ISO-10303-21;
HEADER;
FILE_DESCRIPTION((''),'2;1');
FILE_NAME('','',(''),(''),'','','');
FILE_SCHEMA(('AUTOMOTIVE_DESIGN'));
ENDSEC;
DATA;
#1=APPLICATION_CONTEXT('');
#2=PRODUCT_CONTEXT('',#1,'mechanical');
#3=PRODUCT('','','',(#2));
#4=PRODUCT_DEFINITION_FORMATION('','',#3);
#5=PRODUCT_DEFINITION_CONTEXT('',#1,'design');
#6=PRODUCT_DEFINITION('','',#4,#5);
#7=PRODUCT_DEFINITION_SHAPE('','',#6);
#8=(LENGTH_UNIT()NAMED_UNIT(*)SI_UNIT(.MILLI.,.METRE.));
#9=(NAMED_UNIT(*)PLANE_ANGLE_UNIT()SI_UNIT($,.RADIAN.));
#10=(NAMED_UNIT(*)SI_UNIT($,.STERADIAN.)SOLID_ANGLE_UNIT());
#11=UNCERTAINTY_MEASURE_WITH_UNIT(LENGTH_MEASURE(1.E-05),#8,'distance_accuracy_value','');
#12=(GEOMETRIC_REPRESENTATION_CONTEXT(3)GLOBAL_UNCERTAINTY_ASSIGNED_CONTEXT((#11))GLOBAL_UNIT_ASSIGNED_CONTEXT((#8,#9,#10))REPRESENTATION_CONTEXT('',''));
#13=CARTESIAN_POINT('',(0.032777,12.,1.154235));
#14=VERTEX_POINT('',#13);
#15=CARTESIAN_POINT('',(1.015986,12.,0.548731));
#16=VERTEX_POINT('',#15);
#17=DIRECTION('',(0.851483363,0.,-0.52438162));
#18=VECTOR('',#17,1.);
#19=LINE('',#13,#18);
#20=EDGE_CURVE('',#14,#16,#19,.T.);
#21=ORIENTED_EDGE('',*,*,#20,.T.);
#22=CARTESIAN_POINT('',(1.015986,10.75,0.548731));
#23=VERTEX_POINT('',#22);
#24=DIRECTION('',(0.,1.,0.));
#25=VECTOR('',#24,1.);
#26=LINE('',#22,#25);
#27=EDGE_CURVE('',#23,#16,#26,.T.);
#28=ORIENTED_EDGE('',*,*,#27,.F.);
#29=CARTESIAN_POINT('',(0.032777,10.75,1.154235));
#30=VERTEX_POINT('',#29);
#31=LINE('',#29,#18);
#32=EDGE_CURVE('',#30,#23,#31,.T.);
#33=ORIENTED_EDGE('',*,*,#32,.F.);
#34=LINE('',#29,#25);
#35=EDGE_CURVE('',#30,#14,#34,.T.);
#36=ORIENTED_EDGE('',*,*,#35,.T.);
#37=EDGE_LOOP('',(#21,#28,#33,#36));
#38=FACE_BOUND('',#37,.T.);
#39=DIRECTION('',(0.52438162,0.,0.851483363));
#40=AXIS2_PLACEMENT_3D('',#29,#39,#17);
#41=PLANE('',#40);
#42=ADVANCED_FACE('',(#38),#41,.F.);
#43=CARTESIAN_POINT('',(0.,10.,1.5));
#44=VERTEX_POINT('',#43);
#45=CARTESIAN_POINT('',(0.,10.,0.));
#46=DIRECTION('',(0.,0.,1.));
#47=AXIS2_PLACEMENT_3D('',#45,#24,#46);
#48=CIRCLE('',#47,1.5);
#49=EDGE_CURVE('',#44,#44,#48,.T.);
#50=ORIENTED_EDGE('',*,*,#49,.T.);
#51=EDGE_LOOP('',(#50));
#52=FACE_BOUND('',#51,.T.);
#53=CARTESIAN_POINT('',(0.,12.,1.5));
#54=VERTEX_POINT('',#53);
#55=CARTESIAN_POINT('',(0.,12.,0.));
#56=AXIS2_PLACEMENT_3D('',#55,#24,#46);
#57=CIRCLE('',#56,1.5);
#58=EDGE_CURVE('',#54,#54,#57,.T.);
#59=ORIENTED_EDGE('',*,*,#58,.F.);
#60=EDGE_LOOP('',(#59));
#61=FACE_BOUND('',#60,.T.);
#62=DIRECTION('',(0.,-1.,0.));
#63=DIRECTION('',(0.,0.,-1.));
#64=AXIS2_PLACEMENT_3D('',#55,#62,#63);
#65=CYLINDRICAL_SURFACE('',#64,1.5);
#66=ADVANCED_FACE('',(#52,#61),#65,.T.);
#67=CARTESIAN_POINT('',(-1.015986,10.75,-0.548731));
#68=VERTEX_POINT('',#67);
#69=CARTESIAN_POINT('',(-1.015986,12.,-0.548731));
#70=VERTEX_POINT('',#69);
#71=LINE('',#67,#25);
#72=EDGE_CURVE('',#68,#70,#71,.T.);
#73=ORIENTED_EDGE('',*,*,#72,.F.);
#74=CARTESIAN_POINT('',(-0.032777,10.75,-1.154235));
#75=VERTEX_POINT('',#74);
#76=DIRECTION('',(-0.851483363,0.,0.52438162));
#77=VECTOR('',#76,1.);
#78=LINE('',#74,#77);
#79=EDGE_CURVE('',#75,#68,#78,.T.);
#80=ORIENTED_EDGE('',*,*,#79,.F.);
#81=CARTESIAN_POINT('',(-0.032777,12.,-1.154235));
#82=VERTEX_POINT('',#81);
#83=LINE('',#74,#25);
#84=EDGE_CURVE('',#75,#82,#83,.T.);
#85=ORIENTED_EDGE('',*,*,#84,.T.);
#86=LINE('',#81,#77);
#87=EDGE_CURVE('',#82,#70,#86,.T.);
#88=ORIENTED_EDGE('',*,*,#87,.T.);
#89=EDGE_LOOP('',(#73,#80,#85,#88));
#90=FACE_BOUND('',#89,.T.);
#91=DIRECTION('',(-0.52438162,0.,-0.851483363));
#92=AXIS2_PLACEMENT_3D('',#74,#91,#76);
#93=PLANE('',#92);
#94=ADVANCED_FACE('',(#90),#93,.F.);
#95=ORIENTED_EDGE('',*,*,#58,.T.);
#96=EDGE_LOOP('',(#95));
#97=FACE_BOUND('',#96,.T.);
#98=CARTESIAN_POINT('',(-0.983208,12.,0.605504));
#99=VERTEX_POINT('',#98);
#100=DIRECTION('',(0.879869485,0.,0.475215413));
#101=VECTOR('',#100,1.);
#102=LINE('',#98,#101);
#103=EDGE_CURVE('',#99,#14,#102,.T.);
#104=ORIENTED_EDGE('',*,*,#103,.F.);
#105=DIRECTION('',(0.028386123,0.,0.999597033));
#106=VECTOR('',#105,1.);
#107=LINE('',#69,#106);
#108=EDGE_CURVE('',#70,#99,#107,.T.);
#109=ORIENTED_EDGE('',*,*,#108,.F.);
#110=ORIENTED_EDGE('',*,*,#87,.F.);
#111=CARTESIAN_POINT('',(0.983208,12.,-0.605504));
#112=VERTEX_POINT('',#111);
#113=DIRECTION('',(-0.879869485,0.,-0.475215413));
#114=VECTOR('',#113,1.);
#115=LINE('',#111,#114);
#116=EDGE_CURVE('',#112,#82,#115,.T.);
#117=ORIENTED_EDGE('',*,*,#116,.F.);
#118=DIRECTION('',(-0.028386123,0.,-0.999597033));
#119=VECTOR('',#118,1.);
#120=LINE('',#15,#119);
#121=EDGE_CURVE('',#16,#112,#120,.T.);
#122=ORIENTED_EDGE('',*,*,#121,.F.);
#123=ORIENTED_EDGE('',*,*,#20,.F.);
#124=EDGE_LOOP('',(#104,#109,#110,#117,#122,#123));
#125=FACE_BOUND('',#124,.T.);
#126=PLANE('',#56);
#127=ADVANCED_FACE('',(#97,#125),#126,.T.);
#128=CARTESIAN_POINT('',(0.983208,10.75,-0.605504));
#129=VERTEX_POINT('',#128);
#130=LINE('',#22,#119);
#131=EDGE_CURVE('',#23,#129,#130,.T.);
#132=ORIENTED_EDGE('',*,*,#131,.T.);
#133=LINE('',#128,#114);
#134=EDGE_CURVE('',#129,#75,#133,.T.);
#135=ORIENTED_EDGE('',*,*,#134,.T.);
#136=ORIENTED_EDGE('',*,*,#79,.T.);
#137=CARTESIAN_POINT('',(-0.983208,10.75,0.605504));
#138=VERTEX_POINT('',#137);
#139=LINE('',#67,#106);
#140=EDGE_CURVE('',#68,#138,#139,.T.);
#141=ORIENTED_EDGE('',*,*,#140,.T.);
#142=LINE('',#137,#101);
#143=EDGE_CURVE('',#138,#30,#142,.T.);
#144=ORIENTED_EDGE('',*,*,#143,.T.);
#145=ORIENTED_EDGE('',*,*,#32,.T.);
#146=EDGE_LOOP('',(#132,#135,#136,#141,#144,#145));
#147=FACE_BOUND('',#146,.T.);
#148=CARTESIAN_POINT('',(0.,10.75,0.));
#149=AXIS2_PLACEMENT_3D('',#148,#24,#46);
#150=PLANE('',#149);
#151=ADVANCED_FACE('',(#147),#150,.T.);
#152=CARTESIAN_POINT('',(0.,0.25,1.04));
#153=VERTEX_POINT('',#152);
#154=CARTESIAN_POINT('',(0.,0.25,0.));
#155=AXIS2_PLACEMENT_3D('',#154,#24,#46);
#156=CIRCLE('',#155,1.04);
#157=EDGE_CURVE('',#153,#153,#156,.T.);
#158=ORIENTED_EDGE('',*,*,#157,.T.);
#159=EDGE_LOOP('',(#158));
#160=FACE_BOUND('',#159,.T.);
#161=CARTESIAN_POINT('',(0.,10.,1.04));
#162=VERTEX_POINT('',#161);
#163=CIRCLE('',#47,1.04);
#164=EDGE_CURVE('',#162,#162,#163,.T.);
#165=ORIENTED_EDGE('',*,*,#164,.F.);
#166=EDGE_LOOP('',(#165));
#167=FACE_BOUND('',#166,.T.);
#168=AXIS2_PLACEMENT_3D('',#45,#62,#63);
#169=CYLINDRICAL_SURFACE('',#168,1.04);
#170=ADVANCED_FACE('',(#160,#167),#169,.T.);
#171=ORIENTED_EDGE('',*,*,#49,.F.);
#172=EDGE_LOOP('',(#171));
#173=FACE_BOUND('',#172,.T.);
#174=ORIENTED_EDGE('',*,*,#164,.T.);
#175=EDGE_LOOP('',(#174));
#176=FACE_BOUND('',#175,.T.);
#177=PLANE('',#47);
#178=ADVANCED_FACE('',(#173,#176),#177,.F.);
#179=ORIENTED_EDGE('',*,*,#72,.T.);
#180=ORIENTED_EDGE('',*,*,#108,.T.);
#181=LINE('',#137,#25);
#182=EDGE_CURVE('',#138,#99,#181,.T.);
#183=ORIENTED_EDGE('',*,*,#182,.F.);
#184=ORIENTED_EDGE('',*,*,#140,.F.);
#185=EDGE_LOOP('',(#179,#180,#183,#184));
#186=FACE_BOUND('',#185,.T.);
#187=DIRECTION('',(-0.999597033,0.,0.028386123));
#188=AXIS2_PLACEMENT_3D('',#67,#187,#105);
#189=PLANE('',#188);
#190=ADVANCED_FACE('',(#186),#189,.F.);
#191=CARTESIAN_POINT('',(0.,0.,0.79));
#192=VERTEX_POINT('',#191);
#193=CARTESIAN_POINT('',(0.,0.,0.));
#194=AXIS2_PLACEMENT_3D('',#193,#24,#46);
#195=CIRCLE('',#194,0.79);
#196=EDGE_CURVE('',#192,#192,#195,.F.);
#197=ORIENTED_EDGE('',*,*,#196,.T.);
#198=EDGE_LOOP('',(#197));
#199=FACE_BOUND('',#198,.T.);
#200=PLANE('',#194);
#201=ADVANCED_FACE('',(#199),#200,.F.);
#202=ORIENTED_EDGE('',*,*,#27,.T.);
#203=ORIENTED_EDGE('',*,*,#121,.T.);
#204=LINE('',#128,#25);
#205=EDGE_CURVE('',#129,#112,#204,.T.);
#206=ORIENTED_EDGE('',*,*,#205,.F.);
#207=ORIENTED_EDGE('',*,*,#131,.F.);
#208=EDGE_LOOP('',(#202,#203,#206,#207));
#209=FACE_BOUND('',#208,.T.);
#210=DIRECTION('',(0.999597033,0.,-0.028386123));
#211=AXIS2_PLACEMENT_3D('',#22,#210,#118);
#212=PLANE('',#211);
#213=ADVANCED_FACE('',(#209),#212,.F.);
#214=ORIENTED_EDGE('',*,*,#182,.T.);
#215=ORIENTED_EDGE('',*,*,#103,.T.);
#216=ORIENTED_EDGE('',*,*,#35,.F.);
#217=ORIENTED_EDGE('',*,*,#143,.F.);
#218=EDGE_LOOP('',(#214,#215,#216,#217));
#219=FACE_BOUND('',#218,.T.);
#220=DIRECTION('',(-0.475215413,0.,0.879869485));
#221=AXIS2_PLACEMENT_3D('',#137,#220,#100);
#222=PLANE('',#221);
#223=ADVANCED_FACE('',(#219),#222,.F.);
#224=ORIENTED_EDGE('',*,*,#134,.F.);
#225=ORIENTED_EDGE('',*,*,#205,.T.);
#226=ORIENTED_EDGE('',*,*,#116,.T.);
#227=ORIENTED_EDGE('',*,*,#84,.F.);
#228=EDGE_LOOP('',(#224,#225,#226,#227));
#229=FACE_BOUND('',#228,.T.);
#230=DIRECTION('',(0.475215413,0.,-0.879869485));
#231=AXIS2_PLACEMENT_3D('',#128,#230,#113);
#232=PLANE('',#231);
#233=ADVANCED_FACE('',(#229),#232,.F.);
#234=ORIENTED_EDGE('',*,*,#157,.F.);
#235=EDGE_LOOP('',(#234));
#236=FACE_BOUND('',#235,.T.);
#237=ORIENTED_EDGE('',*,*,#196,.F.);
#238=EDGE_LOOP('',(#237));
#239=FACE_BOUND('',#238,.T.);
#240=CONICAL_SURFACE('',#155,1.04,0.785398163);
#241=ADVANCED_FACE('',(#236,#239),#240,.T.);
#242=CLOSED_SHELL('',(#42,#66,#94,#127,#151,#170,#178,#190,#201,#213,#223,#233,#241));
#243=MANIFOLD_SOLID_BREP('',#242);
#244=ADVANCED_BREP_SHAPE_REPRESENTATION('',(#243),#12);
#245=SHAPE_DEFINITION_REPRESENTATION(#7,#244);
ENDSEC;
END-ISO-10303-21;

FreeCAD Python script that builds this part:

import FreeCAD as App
import Part
import Sketcher

V = App.Vector


def edges_at(feature, points):
    """Names of the edges that pass closest to the given points."""
    edges = feature.Shape.Edges
    near = lambda p: min(range(len(edges)), key=lambda i: edges[i].distToShape(Part.Vertex(*p))[0])
    return sorted({f"Edge{near(p) + 1}" for p in points})

doc = App.newDocument("Part")
body = doc.addObject("PartDesign::Body", "Body")

# Sketch on XZ plane
sketch1 = body.newObject("Sketcher::SketchObject", "Sketch")
sketch1.AttachmentSupport = (doc.getObject("XZ_Plane"), [""])
sketch1.MapMode = "FlatFace"
sketch1.addGeometry(Part.Circle(V(0, 0, 0), V(0, 0, 1), 1), False)
sketch1.addConstraint(Sketcher.Constraint("Coincident", 0, 3, -1, 1))
sketch1.addConstraint(Sketcher.Constraint("Diameter", 0, 2.08))
pad1 = body.newObject("PartDesign::Pad", "Pad")
pad1.Profile = sketch1
pad1.Length = 10
pad1.Reversed = True

# Sketch on XZ plane
sketch2 = body.newObject("Sketcher::SketchObject", "Sketch001")
sketch2.AttachmentSupport = (doc.getObject("XZ_Plane"), [""])
sketch2.MapMode = "FlatFace"
sketch2.AttachmentOffset = App.Placement(V(0, 0, -10), App.Rotation())
sketch2.addGeometry(Part.Circle(V(0, 0, 0), V(0, 0, 1), 1.5), False)
sketch2.addConstraint(Sketcher.Constraint("Coincident", 0, 3, -1, 1))
sketch2.addConstraint(Sketcher.Constraint("Diameter", 0, 3.0))
pad2 = body.newObject("PartDesign::Pad", "Pad001")
pad2.Profile = sketch2
pad2.Length = 2
pad2.Reversed = True

# Sketch on XZ plane
sketch3 = body.newObject("Sketcher::SketchObject", "Sketch002")
sketch3.AttachmentSupport = (doc.getObject("XZ_Plane"), [""])
sketch3.MapMode = "FlatFace"
sketch3.AttachmentOffset = App.Placement(V(0, 0, -12), App.Rotation())
sketch3.addGeometry(Part.LineSegment(V(0, -1.2, 0), V(-1, -0.5, 0)), False)
sketch3.addGeometry(Part.LineSegment(V(-1, -0.5, 0), V(-1, 0.6, 0)), False)
sketch3.addGeometry(Part.LineSegment(V(-1, 0.6, 0), V(0, 1.2, 0)), False)
sketch3.addGeometry(Part.LineSegment(V(0, 1.2, 0), V(1, 0.5, 0)), False)
sketch3.addGeometry(Part.LineSegment(V(1, 0.5, 0), V(1, -0.6, 0)), False)
sketch3.addGeometry(Part.LineSegment(V(1, -0.6, 0), V(0, -1.2, 0)), False)
sketch3.addConstraint(Sketcher.Constraint("Coincident", 0, 2, 1, 1))
sketch3.addConstraint(Sketcher.Constraint("Coincident", 1, 2, 2, 1))
sketch3.addConstraint(Sketcher.Constraint("Coincident", 2, 2, 3, 1))
sketch3.addConstraint(Sketcher.Constraint("Coincident", 3, 2, 4, 1))
sketch3.addConstraint(Sketcher.Constraint("Coincident", 4, 2, 5, 1))
sketch3.addConstraint(Sketcher.Constraint("Coincident", 5, 2, 0, 1))
sketch3.addConstraint(Sketcher.Constraint("Symmetric", 0, 2, 3, 2, -1, 1))
sketch3.addConstraint(Sketcher.Constraint("Symmetric", 1, 2, 4, 2, -1, 1))
sketch3.addConstraint(Sketcher.Constraint("Symmetric", 2, 2, 5, 2, -1, 1))
sketch3.addConstraint(Sketcher.Constraint("Equal", 0, 1))
sketch3.addConstraint(Sketcher.Constraint("Equal", 1, 2))
sketch3.addConstraint(Sketcher.Constraint("Distance", 0, 1.154701))
sketch3.addConstraint(Sketcher.Constraint("DistanceY", 0, 2, -1, 1, 0.548731))
sketch3.addConstraint(Sketcher.Constraint("DistanceX", 1, 2, -1, 1, 0.983208))
sketch3.addConstraint(Sketcher.Constraint("DistanceY", 1, 2, 2, 2, 0.548731))
pocket1 = body.newObject("PartDesign::Pocket", "Pocket")
pocket1.Profile = sketch3
pocket1.Length = 1.25
pocket1.Reversed = True
doc.recompute()

chamfer = body.newObject("PartDesign::Chamfer", "Chamfer")
chamfer.Base = (pocket1, edges_at(pocket1, [(0, 0, -1.04)]))
chamfer.Size = 0.25

doc.recompute()
